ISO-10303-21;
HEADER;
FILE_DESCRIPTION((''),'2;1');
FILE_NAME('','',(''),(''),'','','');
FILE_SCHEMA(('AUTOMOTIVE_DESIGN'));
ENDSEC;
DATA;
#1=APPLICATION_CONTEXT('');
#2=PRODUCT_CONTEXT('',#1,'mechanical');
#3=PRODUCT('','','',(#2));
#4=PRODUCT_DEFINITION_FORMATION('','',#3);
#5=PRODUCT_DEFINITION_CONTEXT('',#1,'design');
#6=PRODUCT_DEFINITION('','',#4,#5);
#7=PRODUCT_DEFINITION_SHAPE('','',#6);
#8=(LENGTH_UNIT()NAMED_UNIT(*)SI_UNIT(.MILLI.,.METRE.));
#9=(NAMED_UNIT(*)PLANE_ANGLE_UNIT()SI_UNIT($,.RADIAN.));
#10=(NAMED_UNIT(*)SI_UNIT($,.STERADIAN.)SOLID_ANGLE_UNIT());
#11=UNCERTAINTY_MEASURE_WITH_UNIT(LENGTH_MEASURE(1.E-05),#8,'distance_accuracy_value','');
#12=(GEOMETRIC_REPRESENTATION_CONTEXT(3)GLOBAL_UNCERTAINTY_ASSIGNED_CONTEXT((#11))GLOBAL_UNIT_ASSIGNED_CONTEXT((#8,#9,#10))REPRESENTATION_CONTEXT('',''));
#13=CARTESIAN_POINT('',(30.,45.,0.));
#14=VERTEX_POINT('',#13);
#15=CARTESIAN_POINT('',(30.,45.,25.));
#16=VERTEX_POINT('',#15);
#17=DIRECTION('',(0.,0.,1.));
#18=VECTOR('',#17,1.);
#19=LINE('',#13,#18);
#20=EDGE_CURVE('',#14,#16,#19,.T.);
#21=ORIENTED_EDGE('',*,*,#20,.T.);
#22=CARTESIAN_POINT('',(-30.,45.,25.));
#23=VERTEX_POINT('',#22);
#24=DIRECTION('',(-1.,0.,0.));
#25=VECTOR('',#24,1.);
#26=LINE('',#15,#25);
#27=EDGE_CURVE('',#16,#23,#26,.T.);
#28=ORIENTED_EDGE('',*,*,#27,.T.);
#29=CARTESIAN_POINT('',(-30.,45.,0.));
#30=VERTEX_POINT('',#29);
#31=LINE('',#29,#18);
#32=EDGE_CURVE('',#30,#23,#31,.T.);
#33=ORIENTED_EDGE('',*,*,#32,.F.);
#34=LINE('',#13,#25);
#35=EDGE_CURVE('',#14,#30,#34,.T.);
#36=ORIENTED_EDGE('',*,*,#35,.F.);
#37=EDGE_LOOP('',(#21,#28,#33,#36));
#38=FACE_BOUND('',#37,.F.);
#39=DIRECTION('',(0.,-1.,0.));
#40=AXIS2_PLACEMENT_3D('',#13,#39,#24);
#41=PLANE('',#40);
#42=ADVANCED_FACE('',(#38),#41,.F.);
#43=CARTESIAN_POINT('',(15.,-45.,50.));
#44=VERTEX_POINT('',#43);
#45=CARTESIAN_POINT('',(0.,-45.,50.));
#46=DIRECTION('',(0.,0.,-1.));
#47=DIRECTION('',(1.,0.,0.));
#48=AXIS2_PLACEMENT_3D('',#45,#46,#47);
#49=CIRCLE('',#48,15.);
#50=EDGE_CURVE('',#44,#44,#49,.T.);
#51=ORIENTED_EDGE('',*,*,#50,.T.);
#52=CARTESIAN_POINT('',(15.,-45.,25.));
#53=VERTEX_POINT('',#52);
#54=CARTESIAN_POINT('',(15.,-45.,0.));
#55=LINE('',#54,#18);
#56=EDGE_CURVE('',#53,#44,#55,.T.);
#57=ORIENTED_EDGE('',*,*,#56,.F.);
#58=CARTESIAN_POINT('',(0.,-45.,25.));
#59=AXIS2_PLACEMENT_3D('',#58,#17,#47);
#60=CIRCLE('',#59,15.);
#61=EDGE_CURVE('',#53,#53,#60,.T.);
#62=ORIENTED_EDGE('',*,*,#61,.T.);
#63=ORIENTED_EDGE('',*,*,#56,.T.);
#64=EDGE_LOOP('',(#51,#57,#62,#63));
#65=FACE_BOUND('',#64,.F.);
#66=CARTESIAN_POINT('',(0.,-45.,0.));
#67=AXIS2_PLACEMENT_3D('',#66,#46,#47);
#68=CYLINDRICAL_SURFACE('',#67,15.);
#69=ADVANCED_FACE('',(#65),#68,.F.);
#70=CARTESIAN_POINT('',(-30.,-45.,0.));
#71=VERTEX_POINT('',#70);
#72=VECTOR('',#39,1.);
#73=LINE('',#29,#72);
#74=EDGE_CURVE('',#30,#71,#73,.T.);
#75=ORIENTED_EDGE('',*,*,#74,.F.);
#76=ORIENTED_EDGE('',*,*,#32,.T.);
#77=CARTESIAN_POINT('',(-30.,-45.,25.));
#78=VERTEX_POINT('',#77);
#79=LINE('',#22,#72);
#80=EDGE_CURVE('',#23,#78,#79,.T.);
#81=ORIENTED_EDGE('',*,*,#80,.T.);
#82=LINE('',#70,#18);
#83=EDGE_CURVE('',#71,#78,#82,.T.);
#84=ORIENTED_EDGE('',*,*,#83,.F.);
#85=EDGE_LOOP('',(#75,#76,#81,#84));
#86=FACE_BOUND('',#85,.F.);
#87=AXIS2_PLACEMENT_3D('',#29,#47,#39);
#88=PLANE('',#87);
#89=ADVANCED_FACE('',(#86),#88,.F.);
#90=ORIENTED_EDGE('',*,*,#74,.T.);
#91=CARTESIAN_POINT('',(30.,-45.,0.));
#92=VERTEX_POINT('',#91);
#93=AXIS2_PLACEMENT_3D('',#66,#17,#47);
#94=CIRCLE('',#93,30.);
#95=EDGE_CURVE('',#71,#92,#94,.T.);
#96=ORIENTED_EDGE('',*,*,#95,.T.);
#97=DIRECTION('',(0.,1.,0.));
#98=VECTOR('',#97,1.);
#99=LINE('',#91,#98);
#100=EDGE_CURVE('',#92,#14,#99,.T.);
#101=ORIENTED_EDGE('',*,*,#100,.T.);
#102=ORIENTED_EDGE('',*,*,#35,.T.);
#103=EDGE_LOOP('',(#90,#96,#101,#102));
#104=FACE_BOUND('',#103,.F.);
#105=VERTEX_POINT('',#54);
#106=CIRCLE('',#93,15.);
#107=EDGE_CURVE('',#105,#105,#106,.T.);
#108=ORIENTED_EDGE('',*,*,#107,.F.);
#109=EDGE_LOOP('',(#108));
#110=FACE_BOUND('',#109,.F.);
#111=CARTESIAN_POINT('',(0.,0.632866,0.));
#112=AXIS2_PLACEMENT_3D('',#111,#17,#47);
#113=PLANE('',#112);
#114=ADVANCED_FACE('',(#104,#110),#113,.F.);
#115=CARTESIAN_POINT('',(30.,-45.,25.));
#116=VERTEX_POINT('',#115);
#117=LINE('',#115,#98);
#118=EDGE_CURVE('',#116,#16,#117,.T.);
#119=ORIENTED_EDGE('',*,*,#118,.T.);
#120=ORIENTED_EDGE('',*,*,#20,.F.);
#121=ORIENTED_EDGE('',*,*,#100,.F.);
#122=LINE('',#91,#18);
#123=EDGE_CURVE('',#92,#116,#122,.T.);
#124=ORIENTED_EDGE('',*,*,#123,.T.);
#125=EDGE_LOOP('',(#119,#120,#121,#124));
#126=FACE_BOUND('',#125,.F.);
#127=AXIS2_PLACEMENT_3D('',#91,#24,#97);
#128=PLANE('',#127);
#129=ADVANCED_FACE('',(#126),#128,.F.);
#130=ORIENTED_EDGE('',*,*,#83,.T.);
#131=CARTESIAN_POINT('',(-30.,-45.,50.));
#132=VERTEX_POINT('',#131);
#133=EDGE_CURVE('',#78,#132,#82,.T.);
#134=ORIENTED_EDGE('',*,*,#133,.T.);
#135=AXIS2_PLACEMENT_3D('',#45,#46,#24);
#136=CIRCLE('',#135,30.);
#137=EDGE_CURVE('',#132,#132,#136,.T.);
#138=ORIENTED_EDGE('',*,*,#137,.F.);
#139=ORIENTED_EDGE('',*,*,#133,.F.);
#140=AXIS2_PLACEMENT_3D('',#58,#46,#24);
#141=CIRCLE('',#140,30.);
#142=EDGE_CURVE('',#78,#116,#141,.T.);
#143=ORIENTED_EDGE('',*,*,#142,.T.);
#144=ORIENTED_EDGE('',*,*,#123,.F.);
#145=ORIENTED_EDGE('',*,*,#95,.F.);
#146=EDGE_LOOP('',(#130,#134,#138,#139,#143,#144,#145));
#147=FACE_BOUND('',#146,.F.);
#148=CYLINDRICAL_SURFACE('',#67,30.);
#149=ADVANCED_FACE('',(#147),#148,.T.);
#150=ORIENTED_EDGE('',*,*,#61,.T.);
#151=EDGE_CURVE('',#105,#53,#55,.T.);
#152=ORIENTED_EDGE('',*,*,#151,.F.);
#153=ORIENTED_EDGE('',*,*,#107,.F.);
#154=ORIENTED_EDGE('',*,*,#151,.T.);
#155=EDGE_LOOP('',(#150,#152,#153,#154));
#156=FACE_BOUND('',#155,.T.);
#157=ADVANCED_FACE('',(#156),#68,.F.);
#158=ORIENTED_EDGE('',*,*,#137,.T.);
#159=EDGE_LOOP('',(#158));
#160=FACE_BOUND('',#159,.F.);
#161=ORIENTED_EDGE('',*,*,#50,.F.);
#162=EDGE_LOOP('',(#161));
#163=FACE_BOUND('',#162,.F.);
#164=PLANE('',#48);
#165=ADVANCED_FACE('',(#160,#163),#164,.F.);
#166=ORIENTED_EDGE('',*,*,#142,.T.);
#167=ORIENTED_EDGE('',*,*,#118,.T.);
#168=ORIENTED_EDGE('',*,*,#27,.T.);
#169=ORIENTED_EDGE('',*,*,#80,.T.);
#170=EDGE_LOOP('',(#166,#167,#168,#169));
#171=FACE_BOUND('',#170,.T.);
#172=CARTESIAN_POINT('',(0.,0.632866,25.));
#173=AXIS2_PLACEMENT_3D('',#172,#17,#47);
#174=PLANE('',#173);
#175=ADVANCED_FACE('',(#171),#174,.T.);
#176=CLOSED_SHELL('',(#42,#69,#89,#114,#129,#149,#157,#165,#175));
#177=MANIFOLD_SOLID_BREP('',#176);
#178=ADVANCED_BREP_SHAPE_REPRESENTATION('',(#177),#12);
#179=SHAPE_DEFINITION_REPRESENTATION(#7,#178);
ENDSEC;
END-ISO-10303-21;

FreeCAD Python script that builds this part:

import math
import FreeCAD as App
import Part
import Sketcher
from FreeCAD import Vector
Q = App.Units.Quantity

doc = App.newDocument("Part")
body = doc.addObject("PartDesign::Body", "Body")

sketch1 = body.newObject("Sketcher::SketchObject", "Sketch")
sketch1.AttachmentSupport = (doc.getObject("XY_Plane"), [""])
sketch1.MapMode = "FlatFace"
sketch1.addGeometry(Part.LineSegment(Vector(30, -45, 0), Vector(30, 45, 0)), False)
sketch1.addGeometry(Part.LineSegment(Vector(30, 45, 0), Vector(-30, 45, 0)), False)
sketch1.addGeometry(Part.LineSegment(Vector(-30, 45, 0), Vector(-30, -45, 0)), False)
sketch1.addGeometry(Part.ArcOfCircle(Part.Circle(Vector(0, -45, 0), Vector(0, 0, 1), 30), math.radians(180), math.radians(360)), False)
sketch1.addGeometry(Part.Circle(Vector(0, -45, 0), Vector(0, 0, 1), 15), False)
sketch1.addConstraint(Sketcher.Constraint("Coincident", 0, 2, 1, 1))
sketch1.addConstraint(Sketcher.Constraint("Coincident", 1, 2, 2, 1))
sketch1.addConstraint(Sketcher.Constraint("Tangent", 2, 2, 3, 1))
sketch1.addConstraint(Sketcher.Constraint("Tangent", 3, 2, 0, 1))
sketch1.addConstraint(Sketcher.Constraint("Vertical", 0))
sketch1.addConstraint(Sketcher.Constraint("Horizontal", 1))
sketch1.addConstraint(Sketcher.Constraint("Vertical", 2))
sketch1.addConstraint(Sketcher.Constraint("Coincident", 4, 3, 3, 3))
sketch1.addConstraint(Sketcher.Constraint("Symmetric", 0, 2, 2, 2, -1, 1))
sketch1.addConstraint(Sketcher.Constraint("Diameter", 4, Q("30 mm")))
sketch1.addConstraint(Sketcher.Constraint("Radius", 3, Q("30 mm")))
sketch1.addConstraint(Sketcher.Constraint("DistanceY", 0, 1, 0, 2, Q("90 mm")))
pad1 = body.newObject("PartDesign::Pad", "Pad")
pad1.Profile = sketch1
pad1.Length = 25

sketch2 = body.newObject("Sketcher::SketchObject", "Sketch001")
sketch2.AttachmentSupport = (doc.getObject("XY_Plane"), [""])
sketch2.MapMode = "FlatFace"
sketch2.addGeometry(Part.Circle(Vector(0, -45, 0), Vector(0, 0, 1), 30), False)
sketch2.addGeometry(Part.Circle(Vector(0, -45, 0), Vector(0, 0, 1), 15), False)
sketch2.addConstraint(Sketcher.Constraint("Coincident", 1, 3, 0, 3))
sketch2.addConstraint(Sketcher.Constraint("PointOnObject", 0, 3, -2))
sketch2.addConstraint(Sketcher.Constraint("Diameter", 0, Q("60 mm")))
sketch2.addConstraint(Sketcher.Constraint("Diameter", 1, Q("30 mm")))
sketch2.addConstraint(Sketcher.Constraint("DistanceY", 0, 3, -1, 1, Q("45 mm")))
pad2 = body.newObject("PartDesign::Pad", "Pad001")
pad2.Profile = sketch2
pad2.Length = 50

doc.recompute()
